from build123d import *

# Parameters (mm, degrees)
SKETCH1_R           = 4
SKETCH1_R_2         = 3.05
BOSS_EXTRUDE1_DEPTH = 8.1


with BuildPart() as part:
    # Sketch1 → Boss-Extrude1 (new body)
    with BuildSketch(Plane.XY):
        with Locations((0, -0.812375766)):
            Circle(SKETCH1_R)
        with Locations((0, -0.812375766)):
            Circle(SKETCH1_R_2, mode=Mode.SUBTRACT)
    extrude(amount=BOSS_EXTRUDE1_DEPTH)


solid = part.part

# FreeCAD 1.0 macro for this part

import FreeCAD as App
import Part
import Sketcher

doc = App.newDocument("Part")
body = doc.addObject("PartDesign::Body", "Body")

sketch1 = body.newObject("Sketcher::SketchObject", "Sketch")
sketch1.AttachmentSupport = (doc.getObject("XY_Plane"), [""])
sketch1.MapMode = "FlatFace"
sketch1.addGeometry(Part.Circle(App.Vector(0, -0.812376, 0), App.Vector(0, 0, 1), 4), False)
sketch1.addGeometry(Part.Circle(App.Vector(0, -0.812376, 0), App.Vector(0, 0, 1), 3.05), False)
sketch1.addConstraint(Sketcher.Constraint("Coincident", 1, 3, 0, 3))
sketch1.addConstraint(Sketcher.Constraint("PointOnObject", 0, 3, -2))
sketch1.addConstraint(Sketcher.Constraint("Diameter", 0, 8.0))
sketch1.addConstraint(Sketcher.Constraint("Diameter", 1, 6.1))
sketch1.addConstraint(Sketcher.Constraint("DistanceY", 0, 3, -1, 1, 0.812376))
pad1 = body.newObject("PartDesign::Pad", "Pad")
pad1.Profile = sketch1
pad1.Length = 8.1

doc.recompute()
